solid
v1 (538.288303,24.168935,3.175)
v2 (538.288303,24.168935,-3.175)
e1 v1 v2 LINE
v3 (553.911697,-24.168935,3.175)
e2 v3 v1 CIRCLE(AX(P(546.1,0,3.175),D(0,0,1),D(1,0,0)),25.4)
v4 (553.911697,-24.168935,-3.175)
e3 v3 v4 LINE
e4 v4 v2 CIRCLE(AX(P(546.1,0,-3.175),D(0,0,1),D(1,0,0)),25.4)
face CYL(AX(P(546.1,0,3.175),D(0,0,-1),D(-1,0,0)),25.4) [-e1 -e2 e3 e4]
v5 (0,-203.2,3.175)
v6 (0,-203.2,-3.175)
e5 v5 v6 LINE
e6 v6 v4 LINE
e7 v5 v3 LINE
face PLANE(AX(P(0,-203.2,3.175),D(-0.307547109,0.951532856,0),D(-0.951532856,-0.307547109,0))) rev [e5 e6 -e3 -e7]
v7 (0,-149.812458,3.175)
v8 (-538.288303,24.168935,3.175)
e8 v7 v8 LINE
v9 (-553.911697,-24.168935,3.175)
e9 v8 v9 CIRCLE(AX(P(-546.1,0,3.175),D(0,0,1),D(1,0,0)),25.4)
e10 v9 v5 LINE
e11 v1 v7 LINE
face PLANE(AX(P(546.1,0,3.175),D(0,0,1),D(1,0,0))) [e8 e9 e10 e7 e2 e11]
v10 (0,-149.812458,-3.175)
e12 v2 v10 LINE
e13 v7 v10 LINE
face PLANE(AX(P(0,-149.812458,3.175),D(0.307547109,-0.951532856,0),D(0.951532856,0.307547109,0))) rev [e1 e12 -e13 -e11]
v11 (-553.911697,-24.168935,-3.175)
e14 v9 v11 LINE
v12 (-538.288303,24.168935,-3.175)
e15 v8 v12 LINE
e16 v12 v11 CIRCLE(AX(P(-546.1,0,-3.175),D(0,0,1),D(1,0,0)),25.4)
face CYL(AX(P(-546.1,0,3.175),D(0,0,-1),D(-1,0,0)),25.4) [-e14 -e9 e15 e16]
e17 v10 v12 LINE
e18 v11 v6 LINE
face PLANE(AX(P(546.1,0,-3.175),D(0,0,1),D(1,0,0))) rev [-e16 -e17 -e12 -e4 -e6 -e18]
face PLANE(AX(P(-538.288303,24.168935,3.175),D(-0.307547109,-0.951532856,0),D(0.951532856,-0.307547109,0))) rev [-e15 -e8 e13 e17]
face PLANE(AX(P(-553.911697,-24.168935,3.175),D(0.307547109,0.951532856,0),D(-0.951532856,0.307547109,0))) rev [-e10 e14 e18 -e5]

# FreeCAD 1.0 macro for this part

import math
import FreeCAD as App
import Part
import Sketcher

V = App.Vector
Q = App.Units.Quantity

doc = App.newDocument("Part")
body = doc.addObject("PartDesign::Body", "Body")

sketch1 = doc.addObject("Sketcher::SketchObject", "Sketch")
body.addObject(sketch1)
sketch1.AttachmentSupport = (doc.XY_Plane, [""])
sketch1.MapMode = "FlatFace"
sketch1.addGeometry([
    Part.LineSegment(V(-553.911697, -24.168935, 0), V(0, -203.2, 0)),
    Part.LineSegment(V(0, -203.2, 0), V(553.911697, -24.168935, 0)),
    Part.ArcOfCircle(Part.Circle(V(546.1, 0, 0), V(0, 0, 1), 25.4), math.radians(-72.08853), math.radians(107.91147)),
    Part.LineSegment(V(538.288303, 24.168935, 0), V(0, -149.812458, 0)),
    Part.LineSegment(V(0, -149.812458, 0), V(-538.288303, 24.168935, 0)),
    Part.ArcOfCircle(Part.Circle(V(-546.1, 0, 0), V(0, 0, 1), 25.4), math.radians(72.08853), math.radians(252.08853)),
], False)
sketch1.addConstraint([
    Sketcher.Constraint("Coincident", 0, 2, 1, 1),
    Sketcher.Constraint("Tangent", 1, 2, 2, 1),
    Sketcher.Constraint("Tangent", 2, 2, 3, 1),
    Sketcher.Constraint("Coincident", 3, 2, 4, 1),
    Sketcher.Constraint("Tangent", 4, 2, 5, 1),
    Sketcher.Constraint("Tangent", 5, 2, 0, 1),
    Sketcher.Constraint("Equal", 2, 5),
    Sketcher.Constraint("Symmetric", 2, 3, 5, 3, -1, 1),
    Sketcher.Constraint("PointOnObject", 2, 3, -1),
    Sketcher.Constraint("PointOnObject", 0, 2, -2),
    Sketcher.Constraint("PointOnObject", 3, 2, -2),
    Sketcher.Constraint("Parallel", 1, 3),
    Sketcher.Constraint("Radius", 2, Q("1 in")),
    Sketcher.Constraint("DistanceY", 0, 2, -1, 1, Q("8 in")),
    Sketcher.Constraint("DistanceX", 5, 3, 2, 3, Q("43 in")),
])
pad1 = doc.addObject("PartDesign::Pad", "Pad")
body.addObject(pad1)
pad1.Profile = sketch1
pad1.Length = Q("0.25 in")
pad1.Midplane = True

doc.recompute()
